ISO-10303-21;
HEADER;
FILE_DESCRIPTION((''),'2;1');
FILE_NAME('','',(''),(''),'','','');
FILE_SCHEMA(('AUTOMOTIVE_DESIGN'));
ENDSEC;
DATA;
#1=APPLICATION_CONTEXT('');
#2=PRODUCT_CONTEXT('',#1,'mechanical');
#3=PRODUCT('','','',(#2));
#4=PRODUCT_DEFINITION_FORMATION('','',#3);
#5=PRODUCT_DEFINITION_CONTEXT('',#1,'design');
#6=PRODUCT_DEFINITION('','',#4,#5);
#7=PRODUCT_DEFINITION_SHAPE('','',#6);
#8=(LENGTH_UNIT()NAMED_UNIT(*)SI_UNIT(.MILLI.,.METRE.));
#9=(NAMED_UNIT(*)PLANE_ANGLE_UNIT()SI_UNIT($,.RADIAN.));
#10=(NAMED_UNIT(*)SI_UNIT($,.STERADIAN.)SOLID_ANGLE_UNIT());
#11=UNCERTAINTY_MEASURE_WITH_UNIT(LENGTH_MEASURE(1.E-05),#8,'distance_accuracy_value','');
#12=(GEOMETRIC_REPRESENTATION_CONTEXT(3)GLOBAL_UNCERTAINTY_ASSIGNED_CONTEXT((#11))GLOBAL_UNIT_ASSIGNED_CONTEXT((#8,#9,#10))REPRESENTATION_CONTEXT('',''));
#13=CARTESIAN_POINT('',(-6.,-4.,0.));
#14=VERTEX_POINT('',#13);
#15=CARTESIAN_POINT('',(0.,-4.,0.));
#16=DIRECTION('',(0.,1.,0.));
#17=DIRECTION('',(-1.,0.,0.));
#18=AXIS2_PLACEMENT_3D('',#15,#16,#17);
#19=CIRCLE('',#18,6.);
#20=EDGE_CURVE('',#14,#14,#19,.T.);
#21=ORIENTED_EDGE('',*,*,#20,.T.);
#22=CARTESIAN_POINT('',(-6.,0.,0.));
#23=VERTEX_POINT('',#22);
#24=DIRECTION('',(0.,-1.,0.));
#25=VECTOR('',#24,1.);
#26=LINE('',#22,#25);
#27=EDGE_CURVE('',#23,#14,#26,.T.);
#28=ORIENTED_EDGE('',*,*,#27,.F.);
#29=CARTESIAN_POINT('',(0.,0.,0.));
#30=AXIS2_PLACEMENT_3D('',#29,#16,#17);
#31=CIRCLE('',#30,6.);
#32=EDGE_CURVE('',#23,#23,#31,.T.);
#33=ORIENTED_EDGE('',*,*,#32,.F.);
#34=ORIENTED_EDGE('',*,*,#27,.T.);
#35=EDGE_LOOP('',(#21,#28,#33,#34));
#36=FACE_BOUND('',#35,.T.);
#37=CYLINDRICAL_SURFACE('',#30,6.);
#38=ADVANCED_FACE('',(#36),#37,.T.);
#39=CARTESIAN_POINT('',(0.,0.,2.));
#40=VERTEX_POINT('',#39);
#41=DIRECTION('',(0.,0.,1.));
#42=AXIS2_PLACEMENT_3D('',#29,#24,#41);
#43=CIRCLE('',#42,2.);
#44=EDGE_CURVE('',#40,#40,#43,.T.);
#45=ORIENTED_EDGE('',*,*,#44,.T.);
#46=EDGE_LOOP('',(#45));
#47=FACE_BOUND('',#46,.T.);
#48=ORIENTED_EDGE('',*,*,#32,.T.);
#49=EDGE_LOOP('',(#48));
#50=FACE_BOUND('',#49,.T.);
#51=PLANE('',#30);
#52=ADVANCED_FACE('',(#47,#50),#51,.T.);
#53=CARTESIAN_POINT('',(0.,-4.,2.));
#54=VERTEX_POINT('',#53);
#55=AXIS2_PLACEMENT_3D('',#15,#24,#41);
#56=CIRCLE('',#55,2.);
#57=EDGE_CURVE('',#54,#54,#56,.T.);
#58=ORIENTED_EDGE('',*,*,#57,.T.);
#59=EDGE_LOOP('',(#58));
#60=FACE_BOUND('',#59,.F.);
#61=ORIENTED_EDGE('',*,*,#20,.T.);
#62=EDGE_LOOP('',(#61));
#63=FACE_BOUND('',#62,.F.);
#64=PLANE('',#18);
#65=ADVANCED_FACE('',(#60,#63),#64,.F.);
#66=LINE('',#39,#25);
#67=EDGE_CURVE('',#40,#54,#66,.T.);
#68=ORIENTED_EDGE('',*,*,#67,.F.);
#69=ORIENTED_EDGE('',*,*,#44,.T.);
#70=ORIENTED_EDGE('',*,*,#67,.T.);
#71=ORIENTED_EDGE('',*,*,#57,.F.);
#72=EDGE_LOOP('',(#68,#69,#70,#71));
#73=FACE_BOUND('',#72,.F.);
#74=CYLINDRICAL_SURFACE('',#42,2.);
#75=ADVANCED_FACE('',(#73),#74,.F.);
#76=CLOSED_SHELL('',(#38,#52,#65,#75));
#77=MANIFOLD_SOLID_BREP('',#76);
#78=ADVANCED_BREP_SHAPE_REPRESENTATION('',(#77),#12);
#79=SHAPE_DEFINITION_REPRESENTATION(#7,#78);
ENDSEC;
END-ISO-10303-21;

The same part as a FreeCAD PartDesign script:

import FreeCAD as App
import Part
import Sketcher
Q = App.Units.Quantity

doc = App.newDocument("Part")
body = doc.addObject("PartDesign::Body", "Body")

sketch1 = body.newObject("Sketcher::SketchObject", "Sketch")
sketch1.AttachmentSupport = (doc.getObject("XZ_Plane"), [""])
sketch1.MapMode = "FlatFace"
sketch1.addGeometry(Part.Circle(App.Vector(0, 0, 0), App.Vector(0, 0, 1), 6), False)
sketch1.addConstraint(Sketcher.Constraint("Coincident", 0, 3, -1, 1))
sketch1.addConstraint(Sketcher.Constraint("Diameter", 0, Q("12 mm")))
pad1 = body.newObject("PartDesign::Pad", "Pad")
pad1.Profile = sketch1
pad1.Length = 4

sketch2 = body.newObject("Sketcher::SketchObject", "Sketch001")
sketch2.AttachmentSupport = (doc.getObject("XZ_Plane"), [""])
sketch2.MapMode = "FlatFace"
sketch2.addGeometry(Part.Circle(App.Vector(0, 0, 0), App.Vector(0, 0, 1), 2), False)
sketch2.addConstraint(Sketcher.Constraint("Coincident", 0, 3, -1, 1))
sketch2.addConstraint(Sketcher.Constraint("Diameter", 0, Q("4 mm")))
doc.recompute()
hole = body.newObject("PartDesign::Hole", "Hole")
hole.Profile = sketch2
hole.ThreadType = "None"
hole.Diameter = 4
hole.DepthType = "ThroughAll"
hole.Reversed = True

doc.recompute()
